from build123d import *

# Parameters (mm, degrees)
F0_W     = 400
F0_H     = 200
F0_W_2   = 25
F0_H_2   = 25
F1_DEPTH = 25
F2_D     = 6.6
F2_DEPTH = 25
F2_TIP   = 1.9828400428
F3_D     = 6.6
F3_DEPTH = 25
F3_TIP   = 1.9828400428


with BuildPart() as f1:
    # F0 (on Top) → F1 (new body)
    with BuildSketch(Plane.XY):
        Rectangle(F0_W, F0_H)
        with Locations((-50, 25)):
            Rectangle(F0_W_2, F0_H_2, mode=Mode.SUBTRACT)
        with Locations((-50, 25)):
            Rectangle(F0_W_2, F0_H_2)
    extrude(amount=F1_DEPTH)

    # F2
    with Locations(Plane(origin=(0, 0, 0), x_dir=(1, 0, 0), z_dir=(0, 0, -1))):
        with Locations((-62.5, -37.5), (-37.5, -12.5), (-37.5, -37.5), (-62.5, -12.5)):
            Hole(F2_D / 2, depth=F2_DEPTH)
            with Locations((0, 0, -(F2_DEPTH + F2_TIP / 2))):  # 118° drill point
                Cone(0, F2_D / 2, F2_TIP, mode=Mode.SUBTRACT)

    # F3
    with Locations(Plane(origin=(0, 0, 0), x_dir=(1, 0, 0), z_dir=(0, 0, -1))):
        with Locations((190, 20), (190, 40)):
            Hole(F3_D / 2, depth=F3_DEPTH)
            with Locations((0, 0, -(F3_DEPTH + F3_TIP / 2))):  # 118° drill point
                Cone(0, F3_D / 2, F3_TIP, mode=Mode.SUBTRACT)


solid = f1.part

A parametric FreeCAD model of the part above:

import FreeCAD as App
import Part
import Sketcher

V = App.Vector

doc = App.newDocument("Part")
body = doc.addObject("PartDesign::Body", "Body")

# Sketch on XY plane
sketch1 = body.newObject("Sketcher::SketchObject", "Sketch")
sketch1.AttachmentSupport = (doc.getObject("XY_Plane"), [""])
sketch1.MapMode = "FlatFace"
sketch1.addGeometry([
    Part.LineSegment(V(-200, 100, 0), V(-200, -100, 0)),
    Part.LineSegment(V(-200, -100, 0), V(200, -100, 0)),
    Part.LineSegment(V(200, -100, 0), V(200, 100, 0)),
    Part.LineSegment(V(200, 100, 0), V(-200, 100, 0)),
], False)
sketch1.addConstraint([
    Sketcher.Constraint("Coincident", 0, 2, 1, 1),
    Sketcher.Constraint("Coincident", 1, 2, 2, 1),
    Sketcher.Constraint("Coincident", 2, 2, 3, 1),
    Sketcher.Constraint("Coincident", 3, 2, 0, 1),
    Sketcher.Constraint("Vertical", 0),
    Sketcher.Constraint("Horizontal", 1),
    Sketcher.Constraint("Vertical", 2),
    Sketcher.Constraint("Horizontal", 3),
    Sketcher.Constraint("Symmetric", 0, 2, 2, 2, -1, 1),
    Sketcher.Constraint("DistanceX", 1, 1, 1, 2, 400.0),
    Sketcher.Constraint("DistanceY", 0, 2, 0, 1, 200.0),
])
pad1 = body.newObject("PartDesign::Pad", "Pad")
pad1.Profile = sketch1
pad1.Length = 25

# Sketch on XY plane
sketch2 = body.newObject("Sketcher::SketchObject", "Sketch001")
sketch2.AttachmentSupport = (doc.getObject("XY_Plane"), [""])
sketch2.MapMode = "FlatFace"
sketch2.addGeometry([
    Part.Circle(V(-62.5, 37.5, 0), V(0, 0, 1), 3.3),
    Part.Circle(V(-37.5, 12.5, 0), V(0, 0, 1), 3.3),
    Part.Circle(V(-37.5, 37.5, 0), V(0, 0, 1), 3.3),
    Part.Circle(V(-62.5, 12.5, 0), V(0, 0, 1), 3.3),
], False)
sketch2.addConstraint([
    Sketcher.Constraint("Equal", 0, 1),
    Sketcher.Constraint("Equal", 1, 2),
    Sketcher.Constraint("Equal", 2, 3),
    Sketcher.Constraint("Horizontal", 0, 3, 2, 3),
    Sketcher.Constraint("Horizontal", 1, 3, 3, 3),
    Sketcher.Constraint("Vertical", 1, 3, 2, 3),
    Sketcher.Constraint("Vertical", 0, 3, 3, 3),
    Sketcher.Constraint("Diameter", 0, 6.6),
    Sketcher.Constraint("DistanceX", 0, 3, 1, 3, 25.0),
    Sketcher.Constraint("DistanceY", 1, 3, 0, 3, 25.0),
    Sketcher.Constraint("DistanceX", 0, 3, -1, 1, 62.5),
    Sketcher.Constraint("DistanceY", -1, 1, 0, 3, 37.5),
])
doc.recompute()
hole = body.newObject("PartDesign::Hole", "Hole")
hole.Profile = sketch2
hole.ThreadType = "None"
hole.Diameter = 6.6
hole.DepthType = "Dimension"
hole.Depth = 25
hole.DrillPoint = "Angled"
hole.DrillPointAngle = 118
hole.Reversed = True

# Sketch on XY plane
sketch3 = body.newObject("Sketcher::SketchObject", "Sketch002")
sketch3.AttachmentSupport = (doc.getObject("XY_Plane"), [""])
sketch3.MapMode = "FlatFace"
sketch3.addGeometry([
    Part.Circle(V(190, -20, 0), V(0, 0, 1), 3.3),
    Part.Circle(V(190, -40, 0), V(0, 0, 1), 3.3),
], False)
sketch3.addConstraint([
    Sketcher.Constraint("Equal", 0, 1),
    Sketcher.Constraint("Vertical", 0, 3, 1, 3),
    Sketcher.Constraint("Diameter", 0, 6.6),
    Sketcher.Constraint("DistanceX", -1, 1, 0, 3, 190.0),
    Sketcher.Constraint("DistanceY", 0, 3, -1, 1, 20.0),
    Sketcher.Constraint("DistanceY", 1, 3, -1, 1, 40.0),
])
doc.recompute()
hole2 = body.newObject("PartDesign::Hole", "Hole001")
hole2.Profile = sketch3
hole2.ThreadType = "None"
hole2.Diameter = 6.6
hole2.DepthType = "Dimension"
hole2.Depth = 25
hole2.DrillPoint = "Angled"
hole2.DrillPointAngle = 118
hole2.Reversed = True

doc.recompute()
